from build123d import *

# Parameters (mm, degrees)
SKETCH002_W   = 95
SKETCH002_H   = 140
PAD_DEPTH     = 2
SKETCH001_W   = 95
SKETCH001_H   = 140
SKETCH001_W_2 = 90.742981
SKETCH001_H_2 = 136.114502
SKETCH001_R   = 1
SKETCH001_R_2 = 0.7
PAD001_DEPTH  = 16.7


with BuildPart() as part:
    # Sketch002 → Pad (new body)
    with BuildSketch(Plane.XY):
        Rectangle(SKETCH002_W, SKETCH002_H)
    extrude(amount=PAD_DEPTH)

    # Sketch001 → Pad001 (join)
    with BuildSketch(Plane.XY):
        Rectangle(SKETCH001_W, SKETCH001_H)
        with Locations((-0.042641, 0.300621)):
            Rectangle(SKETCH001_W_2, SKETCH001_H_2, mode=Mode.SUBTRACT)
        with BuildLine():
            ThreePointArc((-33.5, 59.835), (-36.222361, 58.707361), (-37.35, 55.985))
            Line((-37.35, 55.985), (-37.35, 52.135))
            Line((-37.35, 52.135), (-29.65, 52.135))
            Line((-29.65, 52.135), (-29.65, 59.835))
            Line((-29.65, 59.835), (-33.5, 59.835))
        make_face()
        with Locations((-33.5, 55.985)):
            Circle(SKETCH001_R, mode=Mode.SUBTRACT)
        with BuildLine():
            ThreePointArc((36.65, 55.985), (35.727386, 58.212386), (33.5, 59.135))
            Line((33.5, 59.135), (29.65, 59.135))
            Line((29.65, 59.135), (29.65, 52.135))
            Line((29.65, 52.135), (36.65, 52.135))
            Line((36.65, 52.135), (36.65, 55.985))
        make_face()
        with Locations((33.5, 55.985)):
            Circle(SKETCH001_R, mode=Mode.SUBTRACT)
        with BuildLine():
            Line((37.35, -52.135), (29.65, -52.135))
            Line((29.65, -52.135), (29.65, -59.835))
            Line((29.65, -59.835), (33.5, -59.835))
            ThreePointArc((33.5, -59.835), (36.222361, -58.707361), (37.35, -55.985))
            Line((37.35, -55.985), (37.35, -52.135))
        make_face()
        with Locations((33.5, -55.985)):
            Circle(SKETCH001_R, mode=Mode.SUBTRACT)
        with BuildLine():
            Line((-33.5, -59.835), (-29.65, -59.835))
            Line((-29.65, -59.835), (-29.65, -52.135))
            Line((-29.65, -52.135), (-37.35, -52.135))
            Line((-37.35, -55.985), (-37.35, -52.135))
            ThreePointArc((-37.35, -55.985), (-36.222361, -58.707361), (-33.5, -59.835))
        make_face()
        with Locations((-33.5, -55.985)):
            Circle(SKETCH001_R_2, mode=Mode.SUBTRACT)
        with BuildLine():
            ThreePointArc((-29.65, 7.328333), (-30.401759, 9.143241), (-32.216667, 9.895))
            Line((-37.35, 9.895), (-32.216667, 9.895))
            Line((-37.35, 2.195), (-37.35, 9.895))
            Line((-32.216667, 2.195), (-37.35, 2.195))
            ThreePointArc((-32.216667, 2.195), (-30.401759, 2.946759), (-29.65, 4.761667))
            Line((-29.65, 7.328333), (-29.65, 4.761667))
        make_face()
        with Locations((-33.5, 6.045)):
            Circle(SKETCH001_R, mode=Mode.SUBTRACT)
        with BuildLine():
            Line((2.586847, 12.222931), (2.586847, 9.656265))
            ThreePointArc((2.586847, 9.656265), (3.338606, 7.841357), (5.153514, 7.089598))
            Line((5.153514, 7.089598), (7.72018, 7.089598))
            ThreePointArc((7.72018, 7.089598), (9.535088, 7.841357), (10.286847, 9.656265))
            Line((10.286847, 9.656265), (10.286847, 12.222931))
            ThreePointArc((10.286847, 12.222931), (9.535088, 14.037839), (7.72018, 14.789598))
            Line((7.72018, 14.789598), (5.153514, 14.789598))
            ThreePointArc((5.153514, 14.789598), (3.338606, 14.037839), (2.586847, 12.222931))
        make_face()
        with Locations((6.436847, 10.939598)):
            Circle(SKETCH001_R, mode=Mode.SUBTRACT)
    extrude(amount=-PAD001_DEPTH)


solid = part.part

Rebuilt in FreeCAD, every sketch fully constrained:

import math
import FreeCAD as App
import Part
import Sketcher

V = App.Vector

doc = App.newDocument("Part")
body = doc.addObject("PartDesign::Body", "Body")

# Sketch on XY plane
sketch1 = doc.addObject("Sketcher::SketchObject", "Sketch")
body.addObject(sketch1)
sketch1.AttachmentSupport = (doc.XY_Plane, [""])
sketch1.MapMode = "FlatFace"
sketch1.addGeometry([
    Part.LineSegment(V(-48, 70, 0), V(-48, -70, 0)),
    Part.LineSegment(V(-48, -70, 0), V(48, -70, 0)),
    Part.LineSegment(V(48, -70, 0), V(48, 70, 0)),
    Part.LineSegment(V(48, 70, 0), V(-48, 70, 0)),
], False)
sketch1.addConstraint([
    Sketcher.Constraint("Coincident", 0, 2, 1, 1),
    Sketcher.Constraint("Coincident", 1, 2, 2, 1),
    Sketcher.Constraint("Coincident", 2, 2, 3, 1),
    Sketcher.Constraint("Coincident", 3, 2, 0, 1),
    Sketcher.Constraint("Vertical", 0),
    Sketcher.Constraint("Horizontal", 1),
    Sketcher.Constraint("Vertical", 2),
    Sketcher.Constraint("Horizontal", 3),
    Sketcher.Constraint("Symmetric", 0, 2, 2, 2, -1, 1),
    Sketcher.Constraint("DistanceX", 1, 1, 1, 2, 95.0),
    Sketcher.Constraint("DistanceY", 0, 2, 0, 1, 140.0),
])
pad1 = doc.addObject("PartDesign::Pad", "Pad")
body.addObject(pad1)
pad1.Profile = sketch1
pad1.Length = 2

# Sketch on XY plane
sketch2 = doc.addObject("Sketcher::SketchObject", "Sketch001")
body.addObject(sketch2)
sketch2.AttachmentSupport = (doc.XY_Plane, [""])
sketch2.MapMode = "FlatFace"
sketch2.addGeometry([
    Part.LineSegment(V(-47.5, 70, 0), V(-47.5, -70, 0)),  # 0
    Part.LineSegment(V(-47.5, -70, 0), V(47.5, -70, 0)),  # 1
    Part.LineSegment(V(47.5, -70, 0), V(47.5, 70, 0)),  # 2
    Part.LineSegment(V(47.5, 70, 0), V(-47.5, 70, 0)),  # 3
    Part.LineSegment(V(45.3, -67.8, 0), V(-45.4, -67.8, 0)),  # 4
    Part.LineSegment(V(-45.4, -67.8, 0), V(-45.4, 68.4, 0)),  # 5
    Part.LineSegment(V(-45.4, 68.4, 0), V(45.3, 68.4, 0)),  # 6
    Part.LineSegment(V(45.3, 68.4, 0), V(45.3, -67.8, 0)),  # 7
    Part.ArcOfCircle(Part.Circle(V(-33.5, 56, 0), V(0, 0, 1), 3.9), math.radians(90), math.radians(180)),  # 8
    Part.LineSegment(V(-37.4, 56, 0), V(-37.4, 52.1, 0)),  # 9
    Part.LineSegment(V(-37.4, 52.1, 0), V(-29.6, 52.1, 0)),  # 10
    Part.LineSegment(V(-29.6, 52.1, 0), V(-29.6, 59.8, 0)),  # 11
    Part.LineSegment(V(-29.6, 59.8, 0), V(-33.5, 59.8, 0)),  # 12
    Part.Circle(V(-33.5, 56, 0), V(0, 0, 1), 1),  # 13
    Part.ArcOfCircle(Part.Circle(V(33.5, 56, 0), V(0, 0, 1), 3.2), math.radians(0), math.radians(90)),  # 14
    Part.LineSegment(V(33.5, 59.1, 0), V(29.6, 59.1, 0)),  # 15
    Part.LineSegment(V(29.6, 59.1, 0), V(29.6, 52.1, 0)),  # 16
    Part.LineSegment(V(29.6, 52.1, 0), V(36.6, 52.1, 0)),  # 17
    Part.LineSegment(V(36.6, 52.1, 0), V(36.6, 56, 0)),  # 18
    Part.Circle(V(33.5, 56, 0), V(0, 0, 1), 1),  # 19
    Part.LineSegment(V(37.4, -52.1, 0), V(29.6, -52.1, 0)),  # 20
    Part.LineSegment(V(29.6, -52.1, 0), V(29.6, -59.8, 0)),  # 21
    Part.LineSegment(V(29.6, -59.8, 0), V(33.5, -59.8, 0)),  # 22
    Part.ArcOfCircle(Part.Circle(V(33.5, -56, 0), V(0, 0, 1), 3.9), math.radians(-90), math.radians(0)),  # 23
    Part.LineSegment(V(37.4, -56, 0), V(37.4, -52.1, 0)),  # 24
    Part.Circle(V(33.5, -56, 0), V(0, 0, 1), 1),  # 25
    Part.LineSegment(V(-33.5, -59.8, 0), V(-29.6, -59.8, 0)),  # 26
    Part.LineSegment(V(-29.6, -59.8, 0), V(-29.6, -52.1, 0)),  # 27
    Part.LineSegment(V(-29.6, -52.1, 0), V(-37.4, -52.1, 0)),  # 28
    Part.LineSegment(V(-37.4, -52.1, 0), V(-37.4, -56, 0)),  # 29
    Part.ArcOfCircle(Part.Circle(V(-33.5, -56, 0), V(0, 0, 1), 3.9), math.radians(-180), math.radians(-90)),  # 30
    Part.Circle(V(-33.5, -56, 0), V(0, 0, 1), 0.7),  # 31
    Part.ArcOfCircle(Part.Circle(V(-32.2, 7.3, 0), V(0, 0, 1), 2.6), math.radians(0), math.radians(90)),  # 32
    Part.LineSegment(V(-32.2, 9.9, 0), V(-37.4, 9.9, 0)),  # 33
    Part.LineSegment(V(-37.4, 9.9, 0), V(-37.4, 2.2, 0)),  # 34
    Part.LineSegment(V(-37.4, 2.2, 0), V(-32.2, 2.2, 0)),  # 35
    Part.ArcOfCircle(Part.Circle(V(-32.2, 4.8, 0), V(0, 0, 1), 2.6), math.radians(-90), math.radians(0)),  # 36
    Part.LineSegment(V(-29.6, 4.8, 0), V(-29.6, 7.3, 0)),  # 37
    Part.Circle(V(-33.5, 6, 0), V(0, 0, 1), 1),  # 38
    Part.LineSegment(V(2.6, 12.2, 0), V(2.6, 9.7, 0)),  # 39
    Part.ArcOfCircle(Part.Circle(V(5.2, 9.7, 0), V(0, 0, 1), 2.6), math.radians(180), math.radians(270)),  # 40
    Part.LineSegment(V(5.2, 7.1, 0), V(7.7, 7.1, 0)),  # 41
    Part.ArcOfCircle(Part.Circle(V(7.7, 9.7, 0), V(0, 0, 1), 2.6), math.radians(-90), math.radians(0)),  # 42
    Part.LineSegment(V(10.3, 9.7, 0), V(10.3, 12.2, 0)),  # 43
    Part.ArcOfCircle(Part.Circle(V(7.7, 12.2, 0), V(0, 0, 1), 2.6), math.radians(0), math.radians(90)),  # 44
    Part.LineSegment(V(7.7, 14.8, 0), V(5.2, 14.8, 0)),  # 45
    Part.ArcOfCircle(Part.Circle(V(5.2, 12.2, 0), V(0, 0, 1), 2.6), math.radians(90), math.radians(180)),  # 46
    Part.Circle(V(6.4, 10.9, 0), V(0, 0, 1), 1),  # 47
], False)
sketch2.addConstraint([
    Sketcher.Constraint("Coincident", 0, 2, 1, 1),
    Sketcher.Constraint("Coincident", 1, 2, 2, 1),
    Sketcher.Constraint("Coincident", 2, 2, 3, 1),
    Sketcher.Constraint("Coincident", 3, 2, 0, 1),
    Sketcher.Constraint("Coincident", 4, 2, 5, 1),
    Sketcher.Constraint("Coincident", 5, 2, 6, 1),
    Sketcher.Constraint("Coincident", 6, 2, 7, 1),
    Sketcher.Constraint("Coincident", 7, 2, 4, 1),
    Sketcher.Constraint("Tangent", 8, 2, 9, 1),
    Sketcher.Constraint("Coincident", 9, 2, 10, 1),
    Sketcher.Constraint("Coincident", 10, 2, 11, 1),
    Sketcher.Constraint("Coincident", 11, 2, 12, 1),
    Sketcher.Constraint("Tangent", 12, 2, 8, 1),
    Sketcher.Constraint("Tangent", 14, 2, 15, 1),
    Sketcher.Constraint("Coincident", 15, 2, 16, 1),
    Sketcher.Constraint("Coincident", 16, 2, 17, 1),
    Sketcher.Constraint("Coincident", 17, 2, 18, 1),
    Sketcher.Constraint("Tangent", 18, 2, 14, 1),
    Sketcher.Constraint("Coincident", 20, 2, 21, 1),
    Sketcher.Constraint("Coincident", 21, 2, 22, 1),
    Sketcher.Constraint("Tangent", 22, 2, 23, 1),
    Sketcher.Constraint("Tangent", 23, 2, 24, 1),
    Sketcher.Constraint("Coincident", 24, 2, 20, 1),
    Sketcher.Constraint("Coincident", 26, 2, 27, 1),
    Sketcher.Constraint("Coincident", 27, 2, 28, 1),
    Sketcher.Constraint("Coincident", 28, 2, 29, 1),
    Sketcher.Constraint("Tangent", 29, 2, 30, 1),
    Sketcher.Constraint("Tangent", 30, 2, 26, 1),
    Sketcher.Constraint("Tangent", 32, 2, 33, 1),
    Sketcher.Constraint("Coincident", 33, 2, 34, 1),
    Sketcher.Constraint("Coincident", 34, 2, 35, 1),
    Sketcher.Constraint("Tangent", 35, 2, 36, 1),
    Sketcher.Constraint("Tangent", 36, 2, 37, 1),
    Sketcher.Constraint("Tangent", 37, 2, 32, 1),
    Sketcher.Constraint("Tangent", 39, 2, 40, 1),
    Sketcher.Constraint("Tangent", 40, 2, 41, 1),
    Sketcher.Constraint("Tangent", 41, 2, 42, 1),
    Sketcher.Constraint("Tangent", 42, 2, 43, 1),
    Sketcher.Constraint("Tangent", 43, 2, 44, 1),
    Sketcher.Constraint("Tangent", 44, 2, 45, 1),
    Sketcher.Constraint("Tangent", 45, 2, 46, 1),
    Sketcher.Constraint("Tangent", 46, 2, 39, 1),
    Sketcher.Constraint("Vertical", 0),
    Sketcher.Constraint("Horizontal", 1),
    Sketcher.Constraint("Vertical", 2),
    Sketcher.Constraint("Horizontal", 3),
    Sketcher.Constraint("Horizontal", 4),
    Sketcher.Constraint("Vertical", 5),
    Sketcher.Constraint("Horizontal", 6),
    Sketcher.Constraint("Vertical", 7),
    Sketcher.Constraint("Vertical", 9),
    Sketcher.Constraint("Horizontal", 10),
    Sketcher.Constraint("Vertical", 11),
    Sketcher.Constraint("Horizontal", 12),
    Sketcher.Constraint("Horizontal", 15),
    Sketcher.Constraint("Vertical", 16),
    Sketcher.Constraint("Horizontal", 17),
    Sketcher.Constraint("Vertical", 18),
    Sketcher.Constraint("Horizontal", 20),
    Sketcher.Constraint("Vertical", 21),
    Sketcher.Constraint("Horizontal", 22),
    Sketcher.Constraint("Vertical", 24),
    Sketcher.Constraint("Horizontal", 26),
    Sketcher.Constraint("Vertical", 27),
    Sketcher.Constraint("Horizontal", 28),
    Sketcher.Constraint("Vertical", 29),
    Sketcher.Constraint("Horizontal", 33),
    Sketcher.Constraint("Vertical", 34),
    Sketcher.Constraint("Horizontal", 35),
    Sketcher.Constraint("Vertical", 37),
    Sketcher.Constraint("Vertical", 39),
    Sketcher.Constraint("Horizontal", 41),
    Sketcher.Constraint("Vertical", 43),
    Sketcher.Constraint("Horizontal", 45),
    Sketcher.Constraint("Coincident", 13, 3, 8, 3),
    Sketcher.Constraint("Coincident", 19, 3, 14, 3),
    Sketcher.Constraint("Coincident", 25, 3, 23, 3),
    Sketcher.Constraint("Coincident", 31, 3, 30, 3),
    Sketcher.Constraint("Equal", 13, 19),
    Sketcher.Constraint("Equal", 8, 23),
    Sketcher.Constraint("Equal", 19, 25),
    Sketcher.Constraint("Equal", 23, 30),
    Sketcher.Constraint("Equal", 32, 36),
    Sketcher.Constraint("Equal", 25, 38),
    Sketcher.Constraint("Equal", 36, 40),
    Sketcher.Constraint("Equal", 40, 42),
    Sketcher.Constraint("Equal", 42, 44),
    Sketcher.Constraint("Equal", 44, 46),
    Sketcher.Constraint("Equal", 38, 47),
    Sketcher.Constraint("Symmetric", 8, 3, 23, 3, -1, 1),
    Sketcher.Constraint("Symmetric", 14, 3, 30, 3, -1, 1),
    Sketcher.Constraint("Symmetric", 0, 2, 2, 2, -1, 1),
    Sketcher.Constraint("Symmetric", 10, 2, 20, 2, -1, 1),
    Sketcher.Constraint("Symmetric", 16, 2, 27, 2, -1, 1),
    Sketcher.Constraint("Symmetric", 8, 3, 14, 3, -2),
    Sketcher.Constraint("Symmetric", 10, 2, 16, 2, -2),
    Sketcher.Constraint("Vertical", 31, 3, 38, 3),
    Sketcher.Constraint("Vertical", 29, 2, 33, 2),
    Sketcher.Constraint("Vertical", 27, 2, 36, 2),
    Sketcher.Constraint("Equal", 26, 9),
    Sketcher.Constraint("Equal", 27, 34),
    Sketcher.Constraint("Equal", 45, 37),
    Sketcher.Constraint("Equal", 37, 39),
    Sketcher.Constraint("Diameter", 13, 2.0),
    Sketcher.Constraint("Diameter", 31, 1.4),
    Sketcher.Constraint("DistanceX", 1, 1, 1, 2, 95.0),
    Sketcher.Constraint("DistanceX", 17, 1, 17, 2, 7.0),
    Sketcher.Constraint("DistanceY", 0, 2, 0, 1, 140.0),
    Sketcher.Constraint("Radius", 8, 3.85),
    Sketcher.Constraint("Radius", 14, 3.150001),
    Sketcher.Constraint("DistanceX", 8, 3, 14, 3, 66.999998),
    Sketcher.Constraint("DistanceY", 23, 3, 14, 3, 111.969998),
    Sketcher.Constraint("DistanceY", 38, 3, 8, 3, 49.94),
    Sketcher.Constraint("DistanceY", 38, 3, 32, 2, 3.85),
    Sketcher.Constraint("DistanceX", 39, 2, 47, 3, 3.85),
    Sketcher.Constraint("DistanceY", 40, 2, 47, 3, 3.85),
    Sketcher.Constraint("Radius", 32, 2.566666),
    Sketcher.Constraint("DistanceX", 4, 2, 4, 1, 90.742981),
    Sketcher.Constraint("DistanceY", -1, 1, 40, 2, 7.089598),
    Sketcher.Constraint("DistanceY", 5, 1, 5, 2, 136.114502),
    Sketcher.Constraint("DistanceX", -1, 1, 42, 3, 7.720181),
    Sketcher.Constraint("DistanceX", 4, 2, -1, 1, 45.414132),
    Sketcher.Constraint("DistanceY", 4, 2, -1, 1, 67.75663),
])
pad2 = doc.addObject("PartDesign::Pad", "Pad001")
body.addObject(pad2)
pad2.Profile = sketch2
pad2.Length = 16.7
pad2.Reversed = True

doc.recompute()
